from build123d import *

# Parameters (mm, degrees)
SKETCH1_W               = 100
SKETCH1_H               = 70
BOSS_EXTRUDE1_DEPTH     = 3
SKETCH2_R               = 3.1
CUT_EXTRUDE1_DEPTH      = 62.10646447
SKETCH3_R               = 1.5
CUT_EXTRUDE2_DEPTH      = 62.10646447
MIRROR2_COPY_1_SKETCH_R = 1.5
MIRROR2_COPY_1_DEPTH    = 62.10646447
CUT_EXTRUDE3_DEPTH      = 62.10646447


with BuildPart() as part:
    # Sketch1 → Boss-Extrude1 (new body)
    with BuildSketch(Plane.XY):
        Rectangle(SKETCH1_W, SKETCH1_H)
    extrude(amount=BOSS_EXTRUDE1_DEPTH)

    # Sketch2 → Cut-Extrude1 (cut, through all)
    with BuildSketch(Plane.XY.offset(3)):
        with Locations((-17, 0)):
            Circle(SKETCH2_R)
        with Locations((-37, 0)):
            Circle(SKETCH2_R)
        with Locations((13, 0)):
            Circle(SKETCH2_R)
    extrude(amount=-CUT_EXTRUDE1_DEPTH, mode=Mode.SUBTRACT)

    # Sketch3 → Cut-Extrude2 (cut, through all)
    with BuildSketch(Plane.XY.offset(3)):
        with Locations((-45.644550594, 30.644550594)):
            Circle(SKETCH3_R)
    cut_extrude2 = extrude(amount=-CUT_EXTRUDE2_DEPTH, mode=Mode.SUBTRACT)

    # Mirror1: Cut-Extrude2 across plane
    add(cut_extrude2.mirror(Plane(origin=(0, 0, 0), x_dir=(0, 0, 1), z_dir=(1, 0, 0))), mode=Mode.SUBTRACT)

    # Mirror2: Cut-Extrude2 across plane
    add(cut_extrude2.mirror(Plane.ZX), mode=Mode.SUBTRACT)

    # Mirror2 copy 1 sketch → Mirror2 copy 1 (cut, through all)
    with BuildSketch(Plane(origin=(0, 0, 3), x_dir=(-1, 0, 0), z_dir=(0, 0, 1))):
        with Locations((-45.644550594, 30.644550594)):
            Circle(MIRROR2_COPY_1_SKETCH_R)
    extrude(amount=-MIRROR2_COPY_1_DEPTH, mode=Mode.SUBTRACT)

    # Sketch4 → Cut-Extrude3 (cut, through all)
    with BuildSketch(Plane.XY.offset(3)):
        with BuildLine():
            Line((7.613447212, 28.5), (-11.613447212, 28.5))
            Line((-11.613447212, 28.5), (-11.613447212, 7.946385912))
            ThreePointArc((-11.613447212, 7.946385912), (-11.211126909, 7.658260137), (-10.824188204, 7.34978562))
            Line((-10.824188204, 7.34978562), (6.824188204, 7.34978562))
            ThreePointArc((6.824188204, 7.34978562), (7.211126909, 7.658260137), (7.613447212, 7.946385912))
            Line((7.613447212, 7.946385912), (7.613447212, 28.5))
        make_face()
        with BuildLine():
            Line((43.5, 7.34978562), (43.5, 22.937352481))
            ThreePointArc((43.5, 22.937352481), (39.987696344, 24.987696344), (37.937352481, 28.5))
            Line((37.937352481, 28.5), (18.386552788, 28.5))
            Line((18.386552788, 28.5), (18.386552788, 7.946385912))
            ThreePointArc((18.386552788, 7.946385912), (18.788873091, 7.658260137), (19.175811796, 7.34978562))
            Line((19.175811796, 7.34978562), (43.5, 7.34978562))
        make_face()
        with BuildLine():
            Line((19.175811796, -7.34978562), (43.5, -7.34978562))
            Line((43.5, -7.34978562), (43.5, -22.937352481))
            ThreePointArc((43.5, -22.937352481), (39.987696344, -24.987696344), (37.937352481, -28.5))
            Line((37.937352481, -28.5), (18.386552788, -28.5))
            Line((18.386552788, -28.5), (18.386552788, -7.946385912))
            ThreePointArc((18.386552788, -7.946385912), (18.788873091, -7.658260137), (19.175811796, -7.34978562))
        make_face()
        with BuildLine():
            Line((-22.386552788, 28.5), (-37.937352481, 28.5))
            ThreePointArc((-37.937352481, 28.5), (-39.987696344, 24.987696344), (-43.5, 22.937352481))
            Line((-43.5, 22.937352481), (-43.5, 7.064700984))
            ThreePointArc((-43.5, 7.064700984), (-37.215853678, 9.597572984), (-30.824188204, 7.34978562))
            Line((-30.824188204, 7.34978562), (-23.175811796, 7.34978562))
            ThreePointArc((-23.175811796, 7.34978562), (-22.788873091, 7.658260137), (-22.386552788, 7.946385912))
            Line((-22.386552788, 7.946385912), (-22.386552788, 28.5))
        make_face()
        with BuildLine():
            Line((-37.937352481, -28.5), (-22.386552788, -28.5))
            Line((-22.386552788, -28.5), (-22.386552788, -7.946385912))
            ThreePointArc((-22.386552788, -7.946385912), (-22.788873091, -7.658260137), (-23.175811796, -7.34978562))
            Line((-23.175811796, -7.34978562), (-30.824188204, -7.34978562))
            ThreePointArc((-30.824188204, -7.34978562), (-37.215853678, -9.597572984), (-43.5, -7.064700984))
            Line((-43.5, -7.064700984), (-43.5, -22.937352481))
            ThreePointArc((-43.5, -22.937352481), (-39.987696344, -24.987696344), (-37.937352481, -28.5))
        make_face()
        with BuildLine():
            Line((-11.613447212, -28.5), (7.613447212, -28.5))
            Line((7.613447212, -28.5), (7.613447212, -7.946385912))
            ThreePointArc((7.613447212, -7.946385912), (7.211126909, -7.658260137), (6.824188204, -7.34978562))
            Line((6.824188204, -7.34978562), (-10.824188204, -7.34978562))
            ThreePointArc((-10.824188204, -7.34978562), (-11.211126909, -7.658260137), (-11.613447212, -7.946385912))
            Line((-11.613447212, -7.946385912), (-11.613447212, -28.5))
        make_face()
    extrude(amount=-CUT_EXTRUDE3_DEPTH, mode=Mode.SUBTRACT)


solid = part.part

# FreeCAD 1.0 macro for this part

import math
import FreeCAD as App
import Part
import Sketcher
Q = App.Units.Quantity


def add_polygon(sketch, points):
    """Adds a closed chain of lines whose ends are joined by coincident constraints."""
    first, n = sketch.GeometryCount, len(points)
    for a, b in zip(points, points[1:] + points[:1]):
        sketch.addGeometry(Part.LineSegment(App.Vector(*a, 0), App.Vector(*b, 0)), False)
    for i in range(n):
        sketch.addConstraint(Sketcher.Constraint("Coincident", first + i, 2, first + (i + 1) % n, 1))

doc = App.newDocument("Part")
body = doc.addObject("PartDesign::Body", "Body")

# Sketch on XY plane
sketch1 = body.newObject("Sketcher::SketchObject", "Sketch")
sketch1.AttachmentSupport = (doc.getObject("XY_Plane"), [""])
sketch1.MapMode = "FlatFace"
add_polygon(sketch1, [(-50, 35), (-50, -35), (50, -35), (50, 35)])  # lines 0-3
sketch1.addConstraint([
    Sketcher.Constraint("Vertical", 0),
    Sketcher.Constraint("Horizontal", 1),
    Sketcher.Constraint("Vertical", 2),
    Sketcher.Constraint("Horizontal", 3),
    Sketcher.Constraint("Symmetric", 0, 2, 2, 2, -1, 1),
    Sketcher.Constraint("DistanceX", 1, 1, 1, 2, Q("100 mm")),
    Sketcher.Constraint("DistanceY", 0, 2, 0, 1, Q("70 mm")),
])
pad1 = body.newObject("PartDesign::Pad", "Pad")
pad1.Profile = sketch1
pad1.Length = 3

# Sketch on XY plane
sketch2 = body.newObject("Sketcher::SketchObject", "Sketch001")
sketch2.AttachmentSupport = (doc.getObject("XY_Plane"), [""])
sketch2.MapMode = "FlatFace"
sketch2.AttachmentOffset = App.Placement(App.Vector(0, 0, 3), App.Rotation())
sketch2.addGeometry([
    Part.Circle(App.Vector(-17, 0, 0), App.Vector(0, 0, 1), 3.1),
    Part.Circle(App.Vector(-37, 0, 0), App.Vector(0, 0, 1), 3.1),
    Part.Circle(App.Vector(13, 0, 0), App.Vector(0, 0, 1), 3.1),
], False)
sketch2.addConstraint([
    Sketcher.Constraint("Equal", 0, 1),
    Sketcher.Constraint("Equal", 1, 2),
    Sketcher.Constraint("PointOnObject", 0, 3, -1),
    Sketcher.Constraint("PointOnObject", 1, 3, -1),
    Sketcher.Constraint("PointOnObject", 2, 3, -1),
    Sketcher.Constraint("Diameter", 0, Q("6.2 mm")),
    Sketcher.Constraint("DistanceX", 0, 3, -1, 1, Q("17 mm")),
    Sketcher.Constraint("DistanceX", 1, 3, -1, 1, Q("37 mm")),
    Sketcher.Constraint("DistanceX", -1, 1, 2, 3, Q("13 mm")),
])
pocket1 = body.newObject("PartDesign::Pocket", "Pocket")
pocket1.Profile = sketch2
pocket1.Type = "ThroughAll"

# Sketch on XY plane
sketch3 = body.newObject("Sketcher::SketchObject", "Sketch002")
sketch3.AttachmentSupport = (doc.getObject("XY_Plane"), [""])
sketch3.MapMode = "FlatFace"
sketch3.AttachmentOffset = App.Placement(App.Vector(0, 0, 3), App.Rotation())
sketch3.addGeometry(Part.Circle(App.Vector(-45.6, 30.6, 0), App.Vector(0, 0, 1), 1.5), False)
sketch3.addConstraint([
    Sketcher.Constraint("Diameter", 0, Q("3 mm")),
    Sketcher.Constraint("DistanceX", 0, 3, -1, 1, Q("45.644551 mm")),
    Sketcher.Constraint("DistanceY", -1, 1, 0, 3, Q("30.644551 mm")),
])
pocket2 = body.newObject("PartDesign::Pocket", "Pocket001")
pocket2.Profile = sketch3
pocket2.Type = "ThroughAll"
doc.recompute()

mirrored = body.newObject("PartDesign::Mirrored", "Mirrored")
mirrored.Originals = [pocket2]
mirrored.MirrorPlane = (doc.getObject("YZ_Plane"), [""])
body.Tip = mirrored
doc.recompute()

mirrored2 = body.newObject("PartDesign::Mirrored", "Mirrored001")
mirrored2.Originals = [pocket2]
mirrored2.MirrorPlane = (doc.getObject("XZ_Plane"), [""])
body.Tip = mirrored2

# Sketch on XY plane
sketch4 = body.newObject("Sketcher::SketchObject", "Sketch003")
sketch4.AttachmentSupport = (doc.getObject("XY_Plane"), [""])
sketch4.MapMode = "FlatFace"
sketch4.AttachmentOffset = App.Placement(App.Vector(0, 0, 3), App.Rotation())
sketch4.addGeometry(Part.Circle(App.Vector(45.6, -30.6, 0), App.Vector(0, 0, 1), 1.5), False)
sketch4.addConstraint([
    Sketcher.Constraint("Diameter", 0, Q("3 mm")),
    Sketcher.Constraint("DistanceX", -1, 1, 0, 3, Q("45.644551 mm")),
    Sketcher.Constraint("DistanceY", 0, 3, -1, 1, Q("30.644551 mm")),
])
pocket3 = body.newObject("PartDesign::Pocket", "Pocket002")
pocket3.Profile = sketch4
pocket3.Type = "ThroughAll"

# Sketch on XY plane
sketch5 = body.newObject("Sketcher::SketchObject", "Sketch004")
sketch5.AttachmentSupport = (doc.getObject("XY_Plane"), [""])
sketch5.MapMode = "FlatFace"
sketch5.AttachmentOffset = App.Placement(App.Vector(0, 0, 3), App.Rotation())
sketch5.addGeometry([
    Part.LineSegment(App.Vector(7.6, 28.5, 0), App.Vector(-11.6, 28.5, 0)),  # 0
    Part.LineSegment(App.Vector(-11.6, 28.5, 0), App.Vector(-11.6, 7.9, 0)),  # 1
    Part.ArcOfCircle(Part.Circle(App.Vector(-17, 0, 0), App.Vector(0, 0, 1), 9.6), math.radians(49.96), math.radians(55.87)),  # 2
    Part.LineSegment(App.Vector(-10.8, 7.3, 0), App.Vector(6.8, 7.3, 0)),  # 3
    Part.ArcOfCircle(Part.Circle(App.Vector(13, 0, 0), App.Vector(0, 0, 1), 9.6), math.radians(124.13), math.radians(130.04)),  # 4
    Part.LineSegment(App.Vector(7.6, 7.9, 0), App.Vector(7.6, 28.5, 0)),  # 5
    Part.LineSegment(App.Vector(43.5, 7.3, 0), App.Vector(43.5, 22.9, 0)),  # 6
    Part.ArcOfCircle(Part.Circle(App.Vector(45.6, 30.6, 0), App.Vector(0, 0, 1), 8), math.radians(-164), math.radians(-106)),  # 7
    Part.LineSegment(App.Vector(37.9, 28.5, 0), App.Vector(18.4, 28.5, 0)),  # 8
    Part.LineSegment(App.Vector(18.4, 28.5, 0), App.Vector(18.4, 7.9, 0)),  # 9
    Part.ArcOfCircle(Part.Circle(App.Vector(13, 0, 0), App.Vector(0, 0, 1), 9.6), math.radians(49.96), math.radians(55.87)),  # 10
    Part.LineSegment(App.Vector(19.2, 7.3, 0), App.Vector(43.5, 7.3, 0)),  # 11
    Part.LineSegment(App.Vector(43.5, -7.3, 0), App.Vector(19.2, -7.3, 0)),  # 12
    Part.ArcOfCircle(Part.Circle(App.Vector(13, 0, 0), App.Vector(0, 0, 1), 9.6), math.radians(-55.87), math.radians(-49.96)),  # 13
    Part.LineSegment(App.Vector(18.4, -7.9, 0), App.Vector(18.4, -28.5, 0)),  # 14
    Part.LineSegment(App.Vector(18.4, -28.5, 0), App.Vector(37.9, -28.5, 0)),  # 15
    Part.ArcOfCircle(Part.Circle(App.Vector(45.6, -30.6, 0), App.Vector(0, 0, 1), 8), math.radians(106), math.radians(164)),  # 16
    Part.LineSegment(App.Vector(43.5, -22.9, 0), App.Vector(43.5, -7.3, 0)),  # 17
    Part.LineSegment(App.Vector(-22.4, 28.5, 0), App.Vector(-37.9, 28.5, 0)),  # 18
    Part.ArcOfCircle(Part.Circle(App.Vector(-45.6, 30.6, 0), App.Vector(0, 0, 1), 8), math.radians(-74), math.radians(-16)),  # 19
    Part.LineSegment(App.Vector(-43.5, 22.9, 0), App.Vector(-43.5, 7.1, 0)),  # 20
    Part.ArcOfCircle(Part.Circle(App.Vector(-37, 0, 0), App.Vector(0, 0, 1), 9.6), math.radians(50), math.radians(133)),  # 21
    Part.LineSegment(App.Vector(-30.8, 7.3, 0), App.Vector(-23.2, 7.3, 0)),  # 22
    Part.ArcOfCircle(Part.Circle(App.Vector(-17, 0, 0), App.Vector(0, 0, 1), 9.6), math.radians(124.13), math.radians(130.04)),  # 23
    Part.LineSegment(App.Vector(-22.4, 7.9, 0), App.Vector(-22.4, 28.5, 0)),  # 24
    Part.LineSegment(App.Vector(-37.9, -28.5, 0), App.Vector(-22.4, -28.5, 0)),  # 25
    Part.LineSegment(App.Vector(-22.4, -28.5, 0), App.Vector(-22.4, -7.9, 0)),  # 26
    Part.ArcOfCircle(Part.Circle(App.Vector(-17, 0, 0), App.Vector(0, 0, 1), 9.6), math.radians(-130.04), math.radians(-124.13)),  # 27
    Part.LineSegment(App.Vector(-23.2, -7.3, 0), App.Vector(-30.8, -7.3, 0)),  # 28
    Part.ArcOfCircle(Part.Circle(App.Vector(-37, 0, 0), App.Vector(0, 0, 1), 9.6), math.radians(-133), math.radians(-50)),  # 29
    Part.LineSegment(App.Vector(-43.5, -7.1, 0), App.Vector(-43.5, -22.9, 0)),  # 30
    Part.ArcOfCircle(Part.Circle(App.Vector(-45.6, -30.6, 0), App.Vector(0, 0, 1), 8), math.radians(16), math.radians(74)),  # 31
    Part.LineSegment(App.Vector(-11.6, -28.5, 0), App.Vector(7.6, -28.5, 0)),  # 32
    Part.LineSegment(App.Vector(7.6, -28.5, 0), App.Vector(7.6, -7.9, 0)),  # 33
    Part.ArcOfCircle(Part.Circle(App.Vector(13, 0, 0), App.Vector(0, 0, 1), 9.6), math.radians(-130.04), math.radians(-124.13)),  # 34
    Part.LineSegment(App.Vector(6.8, -7.3, 0), App.Vector(-10.8, -7.3, 0)),  # 35
    Part.ArcOfCircle(Part.Circle(App.Vector(-17, 0, 0), App.Vector(0, 0, 1), 9.6), math.radians(-55.87), math.radians(-49.96)),  # 36
    Part.LineSegment(App.Vector(-11.6, -7.9, 0), App.Vector(-11.6, -28.5, 0)),  # 37
], False)
sketch5.addConstraint([
    Sketcher.Constraint("Coincident", 0, 2, 1, 1),
    Sketcher.Constraint("Coincident", 1, 2, 2, 2),
    Sketcher.Constraint("Coincident", 2, 1, 3, 1),
    Sketcher.Constraint("Coincident", 3, 2, 4, 2),
    Sketcher.Constraint("Coincident", 4, 1, 5, 1),
    Sketcher.Constraint("Coincident", 5, 2, 0, 1),
    Sketcher.Constraint("Coincident", 6, 2, 7, 2),
    Sketcher.Constraint("Coincident", 7, 1, 8, 1),
    Sketcher.Constraint("Coincident", 8, 2, 9, 1),
    Sketcher.Constraint("Coincident", 9, 2, 10, 2),
    Sketcher.Constraint("Coincident", 10, 1, 11, 1),
    Sketcher.Constraint("Coincident", 11, 2, 6, 1),
    Sketcher.Constraint("Coincident", 12, 2, 13, 2),
    Sketcher.Constraint("Coincident", 13, 1, 14, 1),
    Sketcher.Constraint("Coincident", 14, 2, 15, 1),
    Sketcher.Constraint("Coincident", 15, 2, 16, 2),
    Sketcher.Constraint("Coincident", 16, 1, 17, 1),
    Sketcher.Constraint("Coincident", 17, 2, 12, 1),
    Sketcher.Constraint("Coincident", 18, 2, 19, 2),
    Sketcher.Constraint("Coincident", 19, 1, 20, 1),
    Sketcher.Constraint("Coincident", 20, 2, 21, 2),
    Sketcher.Constraint("Coincident", 21, 1, 22, 1),
    Sketcher.Constraint("Coincident", 22, 2, 23, 2),
    Sketcher.Constraint("Coincident", 23, 1, 24, 1),
    Sketcher.Constraint("Coincident", 24, 2, 18, 1),
    Sketcher.Constraint("Coincident", 25, 2, 26, 1),
    Sketcher.Constraint("Coincident", 26, 2, 27, 2),
    Sketcher.Constraint("Coincident", 27, 1, 28, 1),
    Sketcher.Constraint("Coincident", 28, 2, 29, 2),
    Sketcher.Constraint("Coincident", 29, 1, 30, 1),
    Sketcher.Constraint("Coincident", 30, 2, 31, 2),
    Sketcher.Constraint("Coincident", 31, 1, 25, 1),
    Sketcher.Constraint("Coincident", 32, 2, 33, 1),
    Sketcher.Constraint("Coincident", 33, 2, 34, 2),
    Sketcher.Constraint("Coincident", 34, 1, 35, 1),
    Sketcher.Constraint("Coincident", 35, 2, 36, 2),
    Sketcher.Constraint("Coincident", 36, 1, 37, 1),
    Sketcher.Constraint("Coincident", 37, 2, 32, 1),
    Sketcher.Constraint("Horizontal", 0),
    Sketcher.Constraint("Vertical", 1),
    Sketcher.Constraint("Horizontal", 3),
    Sketcher.Constraint("Vertical", 5),
    Sketcher.Constraint("Vertical", 6),
    Sketcher.Constraint("Horizontal", 8),
    Sketcher.Constraint("Vertical", 9),
    Sketcher.Constraint("Horizontal", 11),
    Sketcher.Constraint("Horizontal", 12),
    Sketcher.Constraint("Vertical", 14),
    Sketcher.Constraint("Horizontal", 15),
    Sketcher.Constraint("Vertical", 17),
    Sketcher.Constraint("Horizontal", 18),
    Sketcher.Constraint("Vertical", 20),
    Sketcher.Constraint("Horizontal", 22),
    Sketcher.Constraint("Vertical", 24),
    Sketcher.Constraint("Horizontal", 25),
    Sketcher.Constraint("Vertical", 26),
    Sketcher.Constraint("Horizontal", 28),
    Sketcher.Constraint("Vertical", 30),
    Sketcher.Constraint("Horizontal", 32),
    Sketcher.Constraint("Vertical", 33),
    Sketcher.Constraint("Horizontal", 35),
    Sketcher.Constraint("Vertical", 37),
    Sketcher.Constraint("Coincident", 10, 3, 4, 3),
    Sketcher.Constraint("Coincident", 13, 3, 4, 3),
    Sketcher.Constraint("Coincident", 23, 3, 2, 3),
    Sketcher.Constraint("Coincident", 27, 3, 2, 3),
    Sketcher.Constraint("Coincident", 29, 3, 21, 3),
    Sketcher.Constraint("Coincident", 34, 3, 4, 3),
    Sketcher.Constraint("Coincident", 36, 3, 2, 3),
    Sketcher.Constraint("Equal", 2, 4),
    Sketcher.Constraint("Equal", 4, 10),
    Sketcher.Constraint("Equal", 10, 13),
    Sketcher.Constraint("Equal", 7, 16),
    Sketcher.Constraint("Equal", 16, 19),
    Sketcher.Constraint("Equal", 13, 21),
    Sketcher.Constraint("Equal", 21, 23),
    Sketcher.Constraint("Equal", 23, 27),
    Sketcher.Constraint("Equal", 27, 29),
    Sketcher.Constraint("Equal", 19, 31),
    Sketcher.Constraint("Equal", 29, 34),
    Sketcher.Constraint("Equal", 34, 36),
    Sketcher.Constraint("Symmetric", 16, 3, 19, 3, -1, 1),
    Sketcher.Constraint("Symmetric", 7, 3, 31, 3, -1, 1),
    Sketcher.Constraint("Symmetric", 7, 3, 19, 3, -2),
    Sketcher.Constraint("Symmetric", 10, 1, 12, 2, -1),
    Sketcher.Constraint("Symmetric", 8, 2, 14, 2, -1),
    Sketcher.Constraint("Symmetric", 24, 2, 25, 2, -1),
    Sketcher.Constraint("Symmetric", 22, 2, 27, 1, -1),
    Sketcher.Constraint("Symmetric", 20, 2, 29, 1, -1),
    Sketcher.Constraint("Symmetric", 5, 2, 32, 2, -1),
    Sketcher.Constraint("Horizontal", 1, 2, 4, 1),
    Sketcher.Constraint("Horizontal", 5, 2, 7, 1),
    Sketcher.Constraint("Horizontal", 4, 1, 9, 2),
    Sketcher.Constraint("Horizontal", 3, 2, 10, 1),
    Sketcher.Constraint("Horizontal", 8, 2, 18, 2),
    Sketcher.Constraint("Horizontal", 6, 2, 19, 1),
    Sketcher.Constraint("Horizontal", 11, 2, 21, 1),
    Sketcher.Constraint("Horizontal", 9, 2, 23, 1),
    Sketcher.Constraint("Horizontal", 16, 1, 30, 2),
    Sketcher.Constraint("Horizontal", 28, 2, 34, 1),
    Sketcher.Constraint("Horizontal", 33, 2, 36, 1),
    Sketcher.Constraint("Radius", 7, Q("8 mm")),
    Sketcher.Constraint("Radius", 2, Q("9.6 mm")),
    Sketcher.Constraint("DistanceX", 2, 3, -1, 1, Q("17 mm")),
    Sketcher.Constraint("DistanceX", -1, 1, 4, 3, Q("13 mm")),
    Sketcher.Constraint("DistanceX", 21, 3, -1, 1, Q("37 mm")),
    Sketcher.Constraint("DistanceY", -1, 1, 0, 2, Q("28.5 mm")),
    Sketcher.Constraint("DistanceX", -1, 1, 6, 2, Q("43.5 mm")),
    Sketcher.Constraint("DistanceX", 8, 2, 8, 1, Q("19.5508 mm")),
    Sketcher.Constraint("DistanceX", 11, 1, 11, 2, Q("24.324188 mm")),
    Sketcher.Constraint("DistanceY", 20, 2, 20, 1, Q("15.872651 mm")),
    Sketcher.Constraint("DistanceY", 16, 3, 7, 3, Q("61.289101 mm")),
])
pocket4 = body.newObject("PartDesign::Pocket", "Pocket003")
pocket4.Profile = sketch5
pocket4.Type = "ThroughAll"

doc.recompute()
